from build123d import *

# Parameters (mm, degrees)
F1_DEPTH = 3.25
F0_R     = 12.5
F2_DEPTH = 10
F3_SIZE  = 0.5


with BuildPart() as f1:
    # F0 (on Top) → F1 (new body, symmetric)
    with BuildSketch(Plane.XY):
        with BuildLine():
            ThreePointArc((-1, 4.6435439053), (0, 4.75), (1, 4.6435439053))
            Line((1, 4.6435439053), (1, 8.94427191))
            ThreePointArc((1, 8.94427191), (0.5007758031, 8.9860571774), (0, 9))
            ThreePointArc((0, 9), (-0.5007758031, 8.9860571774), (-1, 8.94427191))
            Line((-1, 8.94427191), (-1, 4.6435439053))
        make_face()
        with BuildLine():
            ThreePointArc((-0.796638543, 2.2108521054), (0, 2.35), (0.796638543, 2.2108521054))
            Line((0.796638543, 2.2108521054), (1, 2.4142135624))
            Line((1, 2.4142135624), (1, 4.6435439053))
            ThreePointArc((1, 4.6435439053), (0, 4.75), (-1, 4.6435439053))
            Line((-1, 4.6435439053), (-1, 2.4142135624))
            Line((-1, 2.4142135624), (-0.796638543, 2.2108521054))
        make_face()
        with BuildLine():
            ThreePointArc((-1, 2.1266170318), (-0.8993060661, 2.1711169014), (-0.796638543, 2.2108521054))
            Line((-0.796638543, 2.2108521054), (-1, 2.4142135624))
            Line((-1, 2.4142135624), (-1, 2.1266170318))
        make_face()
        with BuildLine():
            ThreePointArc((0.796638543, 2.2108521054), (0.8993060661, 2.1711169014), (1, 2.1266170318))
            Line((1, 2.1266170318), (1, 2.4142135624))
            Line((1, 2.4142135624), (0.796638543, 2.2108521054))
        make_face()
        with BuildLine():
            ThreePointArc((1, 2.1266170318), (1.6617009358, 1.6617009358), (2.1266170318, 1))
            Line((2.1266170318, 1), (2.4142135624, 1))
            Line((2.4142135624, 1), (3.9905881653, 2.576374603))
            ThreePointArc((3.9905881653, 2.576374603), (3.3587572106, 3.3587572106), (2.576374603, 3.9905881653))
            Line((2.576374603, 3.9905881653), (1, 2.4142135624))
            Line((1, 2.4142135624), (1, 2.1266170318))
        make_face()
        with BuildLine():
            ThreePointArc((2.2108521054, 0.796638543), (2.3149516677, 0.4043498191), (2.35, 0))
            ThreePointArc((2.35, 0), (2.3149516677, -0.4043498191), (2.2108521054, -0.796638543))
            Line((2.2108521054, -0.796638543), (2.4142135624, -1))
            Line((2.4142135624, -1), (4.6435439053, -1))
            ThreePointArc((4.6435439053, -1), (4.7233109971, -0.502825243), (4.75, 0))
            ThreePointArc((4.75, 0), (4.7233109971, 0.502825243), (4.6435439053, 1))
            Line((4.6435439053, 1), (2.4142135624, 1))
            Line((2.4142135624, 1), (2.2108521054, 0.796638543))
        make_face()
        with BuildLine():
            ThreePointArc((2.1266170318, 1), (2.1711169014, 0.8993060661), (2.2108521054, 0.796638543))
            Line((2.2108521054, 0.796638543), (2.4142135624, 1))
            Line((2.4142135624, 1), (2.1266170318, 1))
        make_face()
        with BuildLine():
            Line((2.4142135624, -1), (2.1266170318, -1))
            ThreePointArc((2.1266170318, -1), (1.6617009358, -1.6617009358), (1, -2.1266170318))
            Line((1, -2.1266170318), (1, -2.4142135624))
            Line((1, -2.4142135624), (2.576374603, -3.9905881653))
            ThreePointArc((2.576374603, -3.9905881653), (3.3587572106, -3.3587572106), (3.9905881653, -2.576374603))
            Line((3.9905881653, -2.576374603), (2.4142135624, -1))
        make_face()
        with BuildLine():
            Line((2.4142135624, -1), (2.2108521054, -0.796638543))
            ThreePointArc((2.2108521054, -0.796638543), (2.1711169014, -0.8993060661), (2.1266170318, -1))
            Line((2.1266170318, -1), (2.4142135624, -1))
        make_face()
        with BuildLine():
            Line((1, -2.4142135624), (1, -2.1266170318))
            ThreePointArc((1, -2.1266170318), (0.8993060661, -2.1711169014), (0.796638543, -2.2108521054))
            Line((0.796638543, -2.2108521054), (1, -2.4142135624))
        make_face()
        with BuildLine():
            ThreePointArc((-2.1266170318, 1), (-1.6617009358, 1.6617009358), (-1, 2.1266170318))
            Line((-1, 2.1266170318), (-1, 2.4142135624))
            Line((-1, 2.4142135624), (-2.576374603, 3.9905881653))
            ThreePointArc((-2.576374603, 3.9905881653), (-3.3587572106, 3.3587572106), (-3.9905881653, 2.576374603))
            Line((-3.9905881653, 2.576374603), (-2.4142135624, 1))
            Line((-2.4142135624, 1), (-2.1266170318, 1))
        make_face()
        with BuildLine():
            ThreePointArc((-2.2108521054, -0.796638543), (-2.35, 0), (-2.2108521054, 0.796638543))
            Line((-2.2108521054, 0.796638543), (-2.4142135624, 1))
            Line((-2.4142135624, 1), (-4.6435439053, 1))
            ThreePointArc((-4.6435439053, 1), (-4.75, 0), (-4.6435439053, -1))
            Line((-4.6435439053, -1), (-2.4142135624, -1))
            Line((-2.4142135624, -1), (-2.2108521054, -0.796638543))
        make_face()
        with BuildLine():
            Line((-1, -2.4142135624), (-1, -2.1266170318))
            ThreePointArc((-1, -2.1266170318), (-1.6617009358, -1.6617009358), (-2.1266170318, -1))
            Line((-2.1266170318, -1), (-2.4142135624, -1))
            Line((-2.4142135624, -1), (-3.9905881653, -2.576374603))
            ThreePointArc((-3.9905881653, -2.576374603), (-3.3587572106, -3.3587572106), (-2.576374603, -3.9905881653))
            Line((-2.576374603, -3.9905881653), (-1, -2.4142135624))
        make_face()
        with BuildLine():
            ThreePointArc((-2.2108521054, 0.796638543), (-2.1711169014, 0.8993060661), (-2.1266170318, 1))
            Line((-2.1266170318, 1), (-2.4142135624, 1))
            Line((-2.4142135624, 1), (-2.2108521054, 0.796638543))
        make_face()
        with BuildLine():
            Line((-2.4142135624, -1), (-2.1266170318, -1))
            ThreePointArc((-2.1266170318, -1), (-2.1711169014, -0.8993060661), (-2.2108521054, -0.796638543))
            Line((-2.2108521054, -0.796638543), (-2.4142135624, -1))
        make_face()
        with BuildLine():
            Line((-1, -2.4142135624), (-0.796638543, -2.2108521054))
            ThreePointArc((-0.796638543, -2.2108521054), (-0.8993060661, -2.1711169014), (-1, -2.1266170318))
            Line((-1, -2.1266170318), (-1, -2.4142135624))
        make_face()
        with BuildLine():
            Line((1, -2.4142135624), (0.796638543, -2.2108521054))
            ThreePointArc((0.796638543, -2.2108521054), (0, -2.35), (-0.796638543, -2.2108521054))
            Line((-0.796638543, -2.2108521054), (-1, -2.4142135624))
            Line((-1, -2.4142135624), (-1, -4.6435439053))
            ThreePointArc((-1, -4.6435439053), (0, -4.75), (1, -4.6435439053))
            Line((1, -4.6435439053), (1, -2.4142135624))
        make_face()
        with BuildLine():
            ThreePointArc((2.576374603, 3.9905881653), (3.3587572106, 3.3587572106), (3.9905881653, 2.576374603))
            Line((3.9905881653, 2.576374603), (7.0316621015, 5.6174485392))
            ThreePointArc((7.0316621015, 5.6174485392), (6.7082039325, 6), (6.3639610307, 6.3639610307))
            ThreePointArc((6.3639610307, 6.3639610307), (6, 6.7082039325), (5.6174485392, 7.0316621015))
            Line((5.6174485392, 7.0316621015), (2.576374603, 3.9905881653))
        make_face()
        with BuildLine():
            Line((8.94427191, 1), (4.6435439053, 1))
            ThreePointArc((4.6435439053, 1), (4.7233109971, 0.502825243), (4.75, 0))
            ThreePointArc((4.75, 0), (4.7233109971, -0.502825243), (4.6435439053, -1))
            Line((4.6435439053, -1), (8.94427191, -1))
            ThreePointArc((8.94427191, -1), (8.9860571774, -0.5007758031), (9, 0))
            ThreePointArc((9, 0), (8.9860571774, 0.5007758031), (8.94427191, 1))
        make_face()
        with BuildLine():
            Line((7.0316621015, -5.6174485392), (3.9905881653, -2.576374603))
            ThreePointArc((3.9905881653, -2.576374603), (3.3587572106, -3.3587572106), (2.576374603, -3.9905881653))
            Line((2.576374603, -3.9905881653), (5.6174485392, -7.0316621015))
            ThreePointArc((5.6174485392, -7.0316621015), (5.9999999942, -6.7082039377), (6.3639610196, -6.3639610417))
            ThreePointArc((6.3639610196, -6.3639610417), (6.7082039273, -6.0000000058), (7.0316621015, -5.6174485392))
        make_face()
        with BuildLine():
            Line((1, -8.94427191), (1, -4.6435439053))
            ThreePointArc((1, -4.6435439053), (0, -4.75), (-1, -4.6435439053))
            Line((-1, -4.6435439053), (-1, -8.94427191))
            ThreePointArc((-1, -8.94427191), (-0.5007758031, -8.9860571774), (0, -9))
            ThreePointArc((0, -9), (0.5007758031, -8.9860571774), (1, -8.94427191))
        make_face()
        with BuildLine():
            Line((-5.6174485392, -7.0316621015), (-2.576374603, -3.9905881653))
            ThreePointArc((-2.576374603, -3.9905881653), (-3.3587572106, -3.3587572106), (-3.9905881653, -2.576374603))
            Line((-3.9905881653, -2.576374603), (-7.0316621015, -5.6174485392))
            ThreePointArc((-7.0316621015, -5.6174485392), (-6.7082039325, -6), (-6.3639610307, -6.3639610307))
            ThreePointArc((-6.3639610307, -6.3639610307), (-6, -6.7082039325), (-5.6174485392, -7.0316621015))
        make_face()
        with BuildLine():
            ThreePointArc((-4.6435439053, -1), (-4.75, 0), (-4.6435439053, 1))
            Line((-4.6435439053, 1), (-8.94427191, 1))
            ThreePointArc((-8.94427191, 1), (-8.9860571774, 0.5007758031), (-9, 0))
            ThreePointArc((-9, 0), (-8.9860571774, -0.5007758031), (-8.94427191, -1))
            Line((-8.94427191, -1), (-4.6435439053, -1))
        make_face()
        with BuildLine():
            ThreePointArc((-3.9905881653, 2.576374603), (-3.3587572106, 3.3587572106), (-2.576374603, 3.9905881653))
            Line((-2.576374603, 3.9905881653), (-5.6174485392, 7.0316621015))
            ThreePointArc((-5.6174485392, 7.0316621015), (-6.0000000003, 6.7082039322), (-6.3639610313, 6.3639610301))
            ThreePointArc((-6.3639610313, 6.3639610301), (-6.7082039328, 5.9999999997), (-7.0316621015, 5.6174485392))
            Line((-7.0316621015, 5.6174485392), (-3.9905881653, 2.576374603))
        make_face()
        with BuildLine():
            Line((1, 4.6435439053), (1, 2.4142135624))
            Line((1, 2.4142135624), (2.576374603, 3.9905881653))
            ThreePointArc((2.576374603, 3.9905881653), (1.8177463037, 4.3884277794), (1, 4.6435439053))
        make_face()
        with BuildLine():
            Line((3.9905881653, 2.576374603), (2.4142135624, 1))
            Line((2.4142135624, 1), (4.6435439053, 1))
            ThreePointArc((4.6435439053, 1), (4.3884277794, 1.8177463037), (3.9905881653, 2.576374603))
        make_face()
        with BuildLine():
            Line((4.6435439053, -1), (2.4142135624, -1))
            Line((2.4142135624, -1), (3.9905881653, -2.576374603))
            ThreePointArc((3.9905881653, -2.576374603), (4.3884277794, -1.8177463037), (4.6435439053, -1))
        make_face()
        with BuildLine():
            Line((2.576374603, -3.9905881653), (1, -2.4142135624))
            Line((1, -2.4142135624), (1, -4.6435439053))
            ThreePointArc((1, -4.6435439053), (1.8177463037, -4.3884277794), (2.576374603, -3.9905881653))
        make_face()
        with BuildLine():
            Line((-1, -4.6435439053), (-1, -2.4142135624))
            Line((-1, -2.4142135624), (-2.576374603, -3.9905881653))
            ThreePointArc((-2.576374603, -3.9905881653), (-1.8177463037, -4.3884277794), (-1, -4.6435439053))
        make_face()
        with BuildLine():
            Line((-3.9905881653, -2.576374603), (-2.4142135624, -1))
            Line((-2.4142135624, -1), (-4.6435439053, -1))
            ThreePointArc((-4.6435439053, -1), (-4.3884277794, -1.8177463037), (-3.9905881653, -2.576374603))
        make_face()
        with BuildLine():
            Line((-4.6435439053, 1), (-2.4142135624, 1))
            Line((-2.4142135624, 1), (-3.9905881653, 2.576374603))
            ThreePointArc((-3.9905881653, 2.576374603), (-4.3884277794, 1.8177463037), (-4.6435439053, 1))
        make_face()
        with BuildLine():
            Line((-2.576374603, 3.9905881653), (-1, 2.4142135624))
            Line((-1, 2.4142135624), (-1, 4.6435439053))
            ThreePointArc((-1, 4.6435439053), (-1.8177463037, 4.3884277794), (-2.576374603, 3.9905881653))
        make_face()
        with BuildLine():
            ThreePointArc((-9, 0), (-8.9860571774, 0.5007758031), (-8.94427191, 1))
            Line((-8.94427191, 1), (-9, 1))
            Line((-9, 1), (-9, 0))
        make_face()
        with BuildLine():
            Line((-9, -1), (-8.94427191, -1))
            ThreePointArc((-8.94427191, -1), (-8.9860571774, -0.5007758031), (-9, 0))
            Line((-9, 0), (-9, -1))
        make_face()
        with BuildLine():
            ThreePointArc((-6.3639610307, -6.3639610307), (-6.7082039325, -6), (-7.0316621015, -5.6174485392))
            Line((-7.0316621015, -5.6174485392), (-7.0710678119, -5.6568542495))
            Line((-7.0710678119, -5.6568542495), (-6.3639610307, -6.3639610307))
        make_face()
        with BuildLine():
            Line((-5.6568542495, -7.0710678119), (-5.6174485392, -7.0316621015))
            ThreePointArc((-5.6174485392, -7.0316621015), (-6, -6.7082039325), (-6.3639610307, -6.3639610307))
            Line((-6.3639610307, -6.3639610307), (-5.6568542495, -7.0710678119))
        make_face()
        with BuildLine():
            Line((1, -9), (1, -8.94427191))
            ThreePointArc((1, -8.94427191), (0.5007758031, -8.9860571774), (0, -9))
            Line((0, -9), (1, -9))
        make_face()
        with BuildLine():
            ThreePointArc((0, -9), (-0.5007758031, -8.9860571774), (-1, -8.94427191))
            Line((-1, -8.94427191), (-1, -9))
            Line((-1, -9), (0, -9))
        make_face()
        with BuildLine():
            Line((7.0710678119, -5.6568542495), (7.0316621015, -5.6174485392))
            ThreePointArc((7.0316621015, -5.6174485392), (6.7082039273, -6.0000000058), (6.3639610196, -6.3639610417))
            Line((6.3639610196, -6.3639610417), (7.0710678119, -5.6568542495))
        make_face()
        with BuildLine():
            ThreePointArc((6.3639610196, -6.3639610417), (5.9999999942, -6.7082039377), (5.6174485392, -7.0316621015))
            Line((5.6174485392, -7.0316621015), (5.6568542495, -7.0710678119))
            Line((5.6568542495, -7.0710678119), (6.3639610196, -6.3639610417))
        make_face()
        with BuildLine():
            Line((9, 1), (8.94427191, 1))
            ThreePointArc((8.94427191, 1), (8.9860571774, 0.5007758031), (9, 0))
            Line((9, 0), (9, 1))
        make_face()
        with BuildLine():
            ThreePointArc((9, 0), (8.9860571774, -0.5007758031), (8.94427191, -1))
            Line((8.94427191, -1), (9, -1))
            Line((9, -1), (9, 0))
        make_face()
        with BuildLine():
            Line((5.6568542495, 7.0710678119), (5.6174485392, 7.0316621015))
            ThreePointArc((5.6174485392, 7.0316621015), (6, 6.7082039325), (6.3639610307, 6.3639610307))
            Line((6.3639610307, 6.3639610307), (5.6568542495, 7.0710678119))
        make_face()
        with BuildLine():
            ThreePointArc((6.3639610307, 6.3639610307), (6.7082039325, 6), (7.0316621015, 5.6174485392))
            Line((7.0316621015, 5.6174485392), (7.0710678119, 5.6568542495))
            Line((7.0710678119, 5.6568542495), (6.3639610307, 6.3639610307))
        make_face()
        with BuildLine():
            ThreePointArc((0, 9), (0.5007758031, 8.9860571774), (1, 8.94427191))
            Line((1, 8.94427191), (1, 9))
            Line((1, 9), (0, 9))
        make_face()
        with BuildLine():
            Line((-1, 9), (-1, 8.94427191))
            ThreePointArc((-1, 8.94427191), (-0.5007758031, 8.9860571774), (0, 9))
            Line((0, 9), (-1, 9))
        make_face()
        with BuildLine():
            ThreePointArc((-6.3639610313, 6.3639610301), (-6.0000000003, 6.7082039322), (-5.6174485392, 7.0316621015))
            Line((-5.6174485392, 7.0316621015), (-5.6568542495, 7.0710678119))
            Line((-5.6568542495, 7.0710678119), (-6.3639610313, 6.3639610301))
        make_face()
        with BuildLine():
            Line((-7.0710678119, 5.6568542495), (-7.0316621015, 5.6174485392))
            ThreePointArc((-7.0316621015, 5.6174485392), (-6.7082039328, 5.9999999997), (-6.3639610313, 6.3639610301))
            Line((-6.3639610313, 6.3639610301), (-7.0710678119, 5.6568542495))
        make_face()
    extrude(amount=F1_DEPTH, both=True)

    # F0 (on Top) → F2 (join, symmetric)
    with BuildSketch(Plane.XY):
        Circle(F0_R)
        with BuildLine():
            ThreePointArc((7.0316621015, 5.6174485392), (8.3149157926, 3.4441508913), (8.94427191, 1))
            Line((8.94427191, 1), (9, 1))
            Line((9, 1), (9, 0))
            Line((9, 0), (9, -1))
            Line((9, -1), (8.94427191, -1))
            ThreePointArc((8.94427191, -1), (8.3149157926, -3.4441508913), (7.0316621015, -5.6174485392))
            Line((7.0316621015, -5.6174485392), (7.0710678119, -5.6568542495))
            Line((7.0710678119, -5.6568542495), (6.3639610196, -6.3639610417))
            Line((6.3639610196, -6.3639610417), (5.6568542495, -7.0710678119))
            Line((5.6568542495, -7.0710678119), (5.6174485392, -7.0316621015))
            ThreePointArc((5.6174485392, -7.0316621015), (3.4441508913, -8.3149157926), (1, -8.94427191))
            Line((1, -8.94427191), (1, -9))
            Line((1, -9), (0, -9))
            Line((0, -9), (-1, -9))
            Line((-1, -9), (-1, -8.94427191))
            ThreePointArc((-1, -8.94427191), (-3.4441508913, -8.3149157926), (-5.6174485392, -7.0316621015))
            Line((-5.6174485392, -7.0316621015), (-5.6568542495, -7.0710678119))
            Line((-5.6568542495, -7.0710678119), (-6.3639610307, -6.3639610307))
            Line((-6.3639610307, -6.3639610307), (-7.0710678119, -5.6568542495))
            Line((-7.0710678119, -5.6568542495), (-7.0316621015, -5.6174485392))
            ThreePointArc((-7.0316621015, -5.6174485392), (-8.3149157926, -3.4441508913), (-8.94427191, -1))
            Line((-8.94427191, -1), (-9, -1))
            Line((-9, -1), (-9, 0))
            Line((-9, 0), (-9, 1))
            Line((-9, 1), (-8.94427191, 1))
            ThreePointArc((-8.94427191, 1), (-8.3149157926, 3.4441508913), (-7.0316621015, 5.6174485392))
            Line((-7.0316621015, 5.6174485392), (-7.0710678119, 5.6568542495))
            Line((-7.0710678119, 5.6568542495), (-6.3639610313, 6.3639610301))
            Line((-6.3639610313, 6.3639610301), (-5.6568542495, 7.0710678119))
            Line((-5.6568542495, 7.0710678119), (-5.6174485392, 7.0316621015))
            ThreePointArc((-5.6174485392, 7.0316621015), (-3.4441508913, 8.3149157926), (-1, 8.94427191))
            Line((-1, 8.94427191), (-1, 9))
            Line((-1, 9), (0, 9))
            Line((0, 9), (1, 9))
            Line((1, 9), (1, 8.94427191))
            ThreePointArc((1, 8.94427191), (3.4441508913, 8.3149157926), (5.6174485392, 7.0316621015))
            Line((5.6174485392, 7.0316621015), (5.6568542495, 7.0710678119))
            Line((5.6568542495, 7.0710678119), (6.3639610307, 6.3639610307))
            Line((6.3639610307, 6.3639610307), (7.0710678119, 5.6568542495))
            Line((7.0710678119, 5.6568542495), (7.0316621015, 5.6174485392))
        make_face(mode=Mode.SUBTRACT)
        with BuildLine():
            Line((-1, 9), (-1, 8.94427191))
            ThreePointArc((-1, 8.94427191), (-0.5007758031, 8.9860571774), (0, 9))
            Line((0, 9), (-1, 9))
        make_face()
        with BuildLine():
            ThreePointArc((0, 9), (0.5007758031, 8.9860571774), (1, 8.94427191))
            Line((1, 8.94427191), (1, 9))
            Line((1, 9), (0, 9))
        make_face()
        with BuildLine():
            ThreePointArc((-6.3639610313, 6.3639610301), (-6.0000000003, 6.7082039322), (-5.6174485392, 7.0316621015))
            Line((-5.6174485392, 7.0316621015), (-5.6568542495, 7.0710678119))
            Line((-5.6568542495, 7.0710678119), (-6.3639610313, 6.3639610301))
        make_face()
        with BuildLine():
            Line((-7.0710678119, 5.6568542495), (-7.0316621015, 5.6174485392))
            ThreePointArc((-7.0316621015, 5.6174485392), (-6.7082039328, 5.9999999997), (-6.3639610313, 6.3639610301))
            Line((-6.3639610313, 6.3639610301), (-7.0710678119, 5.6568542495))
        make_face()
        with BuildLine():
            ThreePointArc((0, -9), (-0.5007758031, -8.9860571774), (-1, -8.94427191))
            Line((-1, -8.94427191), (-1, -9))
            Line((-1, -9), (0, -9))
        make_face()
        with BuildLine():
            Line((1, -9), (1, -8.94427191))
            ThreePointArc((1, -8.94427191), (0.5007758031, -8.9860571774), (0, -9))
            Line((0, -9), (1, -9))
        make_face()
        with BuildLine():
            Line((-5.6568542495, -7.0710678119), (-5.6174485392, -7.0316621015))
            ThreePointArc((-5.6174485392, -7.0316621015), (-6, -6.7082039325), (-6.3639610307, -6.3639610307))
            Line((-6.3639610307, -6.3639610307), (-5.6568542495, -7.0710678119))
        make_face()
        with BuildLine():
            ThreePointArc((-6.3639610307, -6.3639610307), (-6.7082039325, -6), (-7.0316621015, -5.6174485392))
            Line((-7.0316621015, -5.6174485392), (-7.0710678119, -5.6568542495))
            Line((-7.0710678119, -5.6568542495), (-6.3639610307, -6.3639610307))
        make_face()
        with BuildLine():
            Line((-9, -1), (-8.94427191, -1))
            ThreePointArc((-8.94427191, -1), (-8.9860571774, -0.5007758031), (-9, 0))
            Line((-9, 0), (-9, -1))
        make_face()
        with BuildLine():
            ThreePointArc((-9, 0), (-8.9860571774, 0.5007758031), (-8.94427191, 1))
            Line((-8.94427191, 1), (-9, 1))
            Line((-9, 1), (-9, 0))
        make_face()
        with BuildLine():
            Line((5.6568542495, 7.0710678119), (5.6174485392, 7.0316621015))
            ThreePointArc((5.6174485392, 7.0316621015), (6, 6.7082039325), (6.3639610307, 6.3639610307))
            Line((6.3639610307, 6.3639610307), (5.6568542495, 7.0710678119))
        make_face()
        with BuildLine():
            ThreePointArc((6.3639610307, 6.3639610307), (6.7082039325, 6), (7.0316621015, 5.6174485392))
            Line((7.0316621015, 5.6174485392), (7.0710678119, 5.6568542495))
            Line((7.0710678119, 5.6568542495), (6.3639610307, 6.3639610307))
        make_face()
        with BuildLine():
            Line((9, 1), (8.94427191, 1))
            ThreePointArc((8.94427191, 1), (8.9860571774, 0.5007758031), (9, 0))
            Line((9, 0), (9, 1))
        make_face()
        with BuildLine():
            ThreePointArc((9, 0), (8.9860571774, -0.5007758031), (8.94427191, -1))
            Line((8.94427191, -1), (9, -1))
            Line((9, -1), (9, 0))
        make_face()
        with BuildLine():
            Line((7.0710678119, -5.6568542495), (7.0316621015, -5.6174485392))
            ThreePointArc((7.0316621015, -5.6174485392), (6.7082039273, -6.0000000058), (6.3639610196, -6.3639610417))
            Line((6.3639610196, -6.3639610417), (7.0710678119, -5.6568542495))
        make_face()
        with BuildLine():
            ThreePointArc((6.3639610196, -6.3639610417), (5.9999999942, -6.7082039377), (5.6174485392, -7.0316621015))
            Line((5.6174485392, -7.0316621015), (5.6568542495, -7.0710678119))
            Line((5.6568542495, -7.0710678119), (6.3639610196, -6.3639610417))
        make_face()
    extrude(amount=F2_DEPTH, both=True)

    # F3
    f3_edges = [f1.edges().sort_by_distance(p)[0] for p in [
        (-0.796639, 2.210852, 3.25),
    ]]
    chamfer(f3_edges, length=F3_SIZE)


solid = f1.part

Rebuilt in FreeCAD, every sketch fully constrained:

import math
import FreeCAD as App
import Part
import Sketcher
from FreeCAD import Vector
Q = App.Units.Quantity


def edges_at(feature, points):
    """Names of the edges that pass closest to the given points."""
    edges = feature.Shape.Edges
    near = lambda p: min(range(len(edges)), key=lambda i: edges[i].distToShape(Part.Vertex(*p))[0])
    return sorted({f"Edge{near(p) + 1}" for p in points})

doc = App.newDocument("Part")
body = doc.addObject("PartDesign::Body", "Body")

sketch1 = body.newObject("Sketcher::SketchObject", "Sketch")
sketch1.AttachmentSupport = (doc.getObject("XY_Plane"), [""])
sketch1.MapMode = "FlatFace"
sketch1.addGeometry(Part.ArcOfCircle(Part.Circle(Vector(0, 0, 0), Vector(0, 0, 1), 4.75), math.radians(102.153197), math.radians(122.846803)), False)
sketch1.addGeometry(Part.LineSegment(Vector(-2.576375, 3.990588, 0), Vector(-5.617449, 7.031662, 0)), False)
sketch1.addGeometry(Part.LineSegment(Vector(-5.617449, 7.031662, 0), Vector(-5.656854, 7.071068, 0)), False)
sketch1.addGeometry(Part.LineSegment(Vector(-5.656854, 7.071068, 0), Vector(-7.071068, 5.656854, 0)), False)
sketch1.addGeometry(Part.LineSegment(Vector(-7.071068, 5.656854, 0), Vector(-7.031662, 5.617449, 0)), False)
sketch1.addGeometry(Part.LineSegment(Vector(-7.031662, 5.617449, 0), Vector(-3.990588, 2.576375, 0)), False)
sketch1.addGeometry(Part.ArcOfCircle(Part.Circle(Vector(0, 0, 0), Vector(0, 0, 1), 4.75), math.radians(147.153197), math.radians(167.846803)), False)
sketch1.addGeometry(Part.LineSegment(Vector(-4.643544, 1, 0), Vector(-9, 1, 0)), False)
sketch1.addGeometry(Part.LineSegment(Vector(-9, 1, 0), Vector(-9, -1, 0)), False)
sketch1.addGeometry(Part.LineSegment(Vector(-9, -1, 0), Vector(-4.643544, -1, 0)), False)
sketch1.addGeometry(Part.ArcOfCircle(Part.Circle(Vector(0, 0, 0), Vector(0, 0, 1), 4.75), math.radians(-167.846803), math.radians(-147.153197)), False)
sketch1.addGeometry(Part.LineSegment(Vector(-3.990588, -2.576375, 0), Vector(-7.031662, -5.617449, 0)), False)
sketch1.addGeometry(Part.LineSegment(Vector(-7.031662, -5.617449, 0), Vector(-7.071068, -5.656854, 0)), False)
sketch1.addGeometry(Part.LineSegment(Vector(-7.071068, -5.656854, 0), Vector(-5.656854, -7.071068, 0)), False)
sketch1.addGeometry(Part.LineSegment(Vector(-5.656854, -7.071068, 0), Vector(-5.617449, -7.031662, 0)), False)
sketch1.addGeometry(Part.LineSegment(Vector(-5.617449, -7.031662, 0), Vector(-2.576375, -3.990588, 0)), False)
sketch1.addGeometry(Part.ArcOfCircle(Part.Circle(Vector(0, 0, 0), Vector(0, 0, 1), 4.75), math.radians(-122.846803), math.radians(-102.153197)), False)
sketch1.addGeometry(Part.LineSegment(Vector(-1, -4.643544, 0), Vector(-1, -9, 0)), False)
sketch1.addGeometry(Part.LineSegment(Vector(-1, -9, 0), Vector(1, -9, 0)), False)
sketch1.addGeometry(Part.LineSegment(Vector(1, -9, 0), Vector(1, -4.643544, 0)), False)
sketch1.addGeometry(Part.ArcOfCircle(Part.Circle(Vector(0, 0, 0), Vector(0, 0, 1), 4.75), math.radians(-77.846803), math.radians(-57.153197)), False)
sketch1.addGeometry(Part.LineSegment(Vector(2.576375, -3.990588, 0), Vector(5.617449, -7.031662, 0)), False)
sketch1.addGeometry(Part.LineSegment(Vector(5.617449, -7.031662, 0), Vector(5.656854, -7.071068, 0)), False)
sketch1.addGeometry(Part.LineSegment(Vector(5.656854, -7.071068, 0), Vector(6.363961, -6.363961, 0)), False)
sketch1.addGeometry(Part.LineSegment(Vector(6.363961, -6.363961, 0), Vector(7.071068, -5.656854, 0)), False)
sketch1.addGeometry(Part.LineSegment(Vector(7.071068, -5.656854, 0), Vector(7.031662, -5.617449, 0)), False)
sketch1.addGeometry(Part.LineSegment(Vector(7.031662, -5.617449, 0), Vector(3.990588, -2.576375, 0)), False)
sketch1.addGeometry(Part.ArcOfCircle(Part.Circle(Vector(0, 0, 0), Vector(0, 0, 1), 4.75), math.radians(-32.846803), math.radians(-12.153197)), False)
sketch1.addGeometry(Part.LineSegment(Vector(4.643544, -1, 0), Vector(9, -1, 0)), False)
sketch1.addGeometry(Part.LineSegment(Vector(9, -1, 0), Vector(9, 1, 0)), False)
sketch1.addGeometry(Part.LineSegment(Vector(9, 1, 0), Vector(4.643544, 1, 0)), False)
sketch1.addGeometry(Part.ArcOfCircle(Part.Circle(Vector(0, 0, 0), Vector(0, 0, 1), 4.75), math.radians(12.153197), math.radians(32.846803)), False)
sketch1.addGeometry(Part.LineSegment(Vector(3.990588, 2.576375, 0), Vector(7.031662, 5.617449, 0)), False)
sketch1.addGeometry(Part.LineSegment(Vector(7.031662, 5.617449, 0), Vector(7.071068, 5.656854, 0)), False)
sketch1.addGeometry(Part.LineSegment(Vector(7.071068, 5.656854, 0), Vector(5.656854, 7.071068, 0)), False)
sketch1.addGeometry(Part.LineSegment(Vector(5.656854, 7.071068, 0), Vector(5.617449, 7.031662, 0)), False)
sketch1.addGeometry(Part.LineSegment(Vector(5.617449, 7.031662, 0), Vector(2.576375, 3.990588, 0)), False)
sketch1.addGeometry(Part.ArcOfCircle(Part.Circle(Vector(0, 0, 0), Vector(0, 0, 1), 4.75), math.radians(57.153197), math.radians(77.846803)), False)
sketch1.addGeometry(Part.LineSegment(Vector(1, 4.643544, 0), Vector(1, 9, 0)), False)
sketch1.addGeometry(Part.LineSegment(Vector(1, 9, 0), Vector(-1, 9, 0)), False)
sketch1.addGeometry(Part.LineSegment(Vector(-1, 9, 0), Vector(-1, 4.643544, 0)), False)
sketch1.addGeometry(Part.ArcOfCircle(Part.Circle(Vector(0, 0, 0), Vector(0, 0, 1), 2.35), math.radians(-115.184337), math.radians(-109.815663)), False)
sketch1.addGeometry(Part.ArcOfCircle(Part.Circle(Vector(0, 0, 0), Vector(0, 0, 1), 2.35), math.radians(-154.815663), math.radians(-115.184337)), False)
sketch1.addGeometry(Part.ArcOfCircle(Part.Circle(Vector(0, 0, 0), Vector(0, 0, 1), 2.35), math.radians(-160.184337), math.radians(-154.815663)), False)
sketch1.addGeometry(Part.ArcOfCircle(Part.Circle(Vector(0, 0, 0), Vector(0, 0, 1), 2.35), math.radians(160.184337), math.radians(199.815663)), False)
sketch1.addGeometry(Part.ArcOfCircle(Part.Circle(Vector(0, 0, 0), Vector(0, 0, 1), 2.35), math.radians(154.815663), math.radians(160.184337)), False)
sketch1.addGeometry(Part.ArcOfCircle(Part.Circle(Vector(0, 0, 0), Vector(0, 0, 1), 2.35), math.radians(115.184337), math.radians(154.815663)), False)
sketch1.addGeometry(Part.ArcOfCircle(Part.Circle(Vector(0, 0, 0), Vector(0, 0, 1), 2.35), math.radians(109.815663), math.radians(115.184337)), False)
sketch1.addGeometry(Part.ArcOfCircle(Part.Circle(Vector(0, 0, 0), Vector(0, 0, 1), 2.35), math.radians(70.184337), math.radians(109.815663)), False)
sketch1.addGeometry(Part.ArcOfCircle(Part.Circle(Vector(0, 0, 0), Vector(0, 0, 1), 2.35), math.radians(64.815663), math.radians(70.184337)), False)
sketch1.addGeometry(Part.ArcOfCircle(Part.Circle(Vector(0, 0, 0), Vector(0, 0, 1), 2.35), math.radians(25.184337), math.radians(64.815663)), False)
sketch1.addGeometry(Part.ArcOfCircle(Part.Circle(Vector(0, 0, 0), Vector(0, 0, 1), 2.35), math.radians(19.815663), math.radians(25.184337)), False)
sketch1.addGeometry(Part.ArcOfCircle(Part.Circle(Vector(0, 0, 0), Vector(0, 0, 1), 2.35), math.radians(0), math.radians(19.815663)), False)
sketch1.addGeometry(Part.ArcOfCircle(Part.Circle(Vector(0, 0, 0), Vector(0, 0, 1), 2.35), math.radians(-19.815663), math.radians(0)), False)
sketch1.addGeometry(Part.ArcOfCircle(Part.Circle(Vector(0, 0, 0), Vector(0, 0, 1), 2.35), math.radians(-25.184337), math.radians(-19.815663)), False)
sketch1.addGeometry(Part.ArcOfCircle(Part.Circle(Vector(0, 0, 0), Vector(0, 0, 1), 2.35), math.radians(-64.815663), math.radians(-25.184337)), False)
sketch1.addGeometry(Part.ArcOfCircle(Part.Circle(Vector(0, 0, 0), Vector(0, 0, 1), 2.35), math.radians(-70.184337), math.radians(-64.815663)), False)
sketch1.addGeometry(Part.ArcOfCircle(Part.Circle(Vector(0, 0, 0), Vector(0, 0, 1), 2.35), math.radians(-109.815663), math.radians(-70.184337)), False)
sketch1.addConstraint(Sketcher.Constraint("Coincident", 0, 2, 1, 1))
sketch1.addConstraint(Sketcher.Constraint("Coincident", 1, 2, 2, 1))
sketch1.addConstraint(Sketcher.Constraint("Coincident", 2, 2, 3, 1))
sketch1.addConstraint(Sketcher.Constraint("Coincident", 3, 2, 4, 1))
sketch1.addConstraint(Sketcher.Constraint("Coincident", 4, 2, 5, 1))
sketch1.addConstraint(Sketcher.Constraint("Coincident", 5, 2, 6, 1))
sketch1.addConstraint(Sketcher.Constraint("Coincident", 6, 2, 7, 1))
sketch1.addConstraint(Sketcher.Constraint("Coincident", 7, 2, 8, 1))
sketch1.addConstraint(Sketcher.Constraint("Coincident", 8, 2, 9, 1))
sketch1.addConstraint(Sketcher.Constraint("Coincident", 9, 2, 10, 1))
sketch1.addConstraint(Sketcher.Constraint("Coincident", 10, 2, 11, 1))
sketch1.addConstraint(Sketcher.Constraint("Coincident", 11, 2, 12, 1))
sketch1.addConstraint(Sketcher.Constraint("Coincident", 12, 2, 13, 1))
sketch1.addConstraint(Sketcher.Constraint("Coincident", 13, 2, 14, 1))
sketch1.addConstraint(Sketcher.Constraint("Coincident", 14, 2, 15, 1))
sketch1.addConstraint(Sketcher.Constraint("Coincident", 15, 2, 16, 1))
sketch1.addConstraint(Sketcher.Constraint("Coincident", 16, 2, 17, 1))
sketch1.addConstraint(Sketcher.Constraint("Coincident", 17, 2, 18, 1))
sketch1.addConstraint(Sketcher.Constraint("Coincident", 18, 2, 19, 1))
sketch1.addConstraint(Sketcher.Constraint("Coincident", 19, 2, 20, 1))
sketch1.addConstraint(Sketcher.Constraint("Coincident", 20, 2, 21, 1))
sketch1.addConstraint(Sketcher.Constraint("Coincident", 21, 2, 22, 1))
sketch1.addConstraint(Sketcher.Constraint("Coincident", 22, 2, 23, 1))
sketch1.addConstraint(Sketcher.Constraint("Coincident", 23, 2, 24, 1))
sketch1.addConstraint(Sketcher.Constraint("Coincident", 24, 2, 25, 1))
sketch1.addConstraint(Sketcher.Constraint("Coincident", 25, 2, 26, 1))
sketch1.addConstraint(Sketcher.Constraint("Coincident", 26, 2, 27, 1))
sketch1.addConstraint(Sketcher.Constraint("Coincident", 27, 2, 28, 1))
sketch1.addConstraint(Sketcher.Constraint("Coincident", 28, 2, 29, 1))
sketch1.addConstraint(Sketcher.Constraint("Coincident", 29, 2, 30, 1))
sketch1.addConstraint(Sketcher.Constraint("Coincident", 30, 2, 31, 1))
sketch1.addConstraint(Sketcher.Constraint("Coincident", 31, 2, 32, 1))
sketch1.addConstraint(Sketcher.Constraint("Coincident", 32, 2, 33, 1))
sketch1.addConstraint(Sketcher.Constraint("Coincident", 33, 2, 34, 1))
sketch1.addConstraint(Sketcher.Constraint("Coincident", 34, 2, 35, 1))
sketch1.addConstraint(Sketcher.Constraint("Coincident", 35, 2, 36, 1))
sketch1.addConstraint(Sketcher.Constraint("Coincident", 36, 2, 37, 1))
sketch1.addConstraint(Sketcher.Constraint("Coincident", 37, 2, 38, 1))
sketch1.addConstraint(Sketcher.Constraint("Coincident", 38, 2, 39, 1))
sketch1.addConstraint(Sketcher.Constraint("Coincident", 39, 2, 40, 1))
sketch1.addConstraint(Sketcher.Constraint("Coincident", 40, 2, 0, 1))
sketch1.addConstraint(Sketcher.Constraint("Tangent", 41, 1, 42, 2))
sketch1.addConstraint(Sketcher.Constraint("Tangent", 42, 1, 43, 2))
sketch1.addConstraint(Sketcher.Constraint("Tangent", 43, 1, 44, 2))
sketch1.addConstraint(Sketcher.Constraint("Tangent", 44, 1, 45, 2))
sketch1.addConstraint(Sketcher.Constraint("Tangent", 45, 1, 46, 2))
sketch1.addConstraint(Sketcher.Constraint("Tangent", 46, 1, 47, 2))
sketch1.addConstraint(Sketcher.Constraint("Tangent", 47, 1, 48, 2))
sketch1.addConstraint(Sketcher.Constraint("Tangent", 48, 1, 49, 2))
sketch1.addConstraint(Sketcher.Constraint("Tangent", 49, 1, 50, 2))
sketch1.addConstraint(Sketcher.Constraint("Tangent", 50, 1, 51, 2))
sketch1.addConstraint(Sketcher.Constraint("Tangent", 51, 1, 52, 2))
sketch1.addConstraint(Sketcher.Constraint("Tangent", 52, 1, 53, 2))
sketch1.addConstraint(Sketcher.Constraint("Tangent", 53, 1, 54, 2))
sketch1.addConstraint(Sketcher.Constraint("Tangent", 54, 1, 55, 2))
sketch1.addConstraint(Sketcher.Constraint("Tangent", 55, 1, 56, 2))
sketch1.addConstraint(Sketcher.Constraint("Tangent", 56, 1, 57, 2))
sketch1.addConstraint(Sketcher.Constraint("Tangent", 57, 1, 41, 2))
sketch1.addConstraint(Sketcher.Constraint("Horizontal", 7))
sketch1.addConstraint(Sketcher.Constraint("Vertical", 8))
sketch1.addConstraint(Sketcher.Constraint("Horizontal", 9))
sketch1.addConstraint(Sketcher.Constraint("Vertical", 17))
sketch1.addConstraint(Sketcher.Constraint("Horizontal", 18))
sketch1.addConstraint(Sketcher.Constraint("Vertical", 19))
sketch1.addConstraint(Sketcher.Constraint("Horizontal", 28))
sketch1.addConstraint(Sketcher.Constraint("Vertical", 29))
sketch1.addConstraint(Sketcher.Constraint("Horizontal", 30))
sketch1.addConstraint(Sketcher.Constraint("Vertical", 38))
sketch1.addConstraint(Sketcher.Constraint("Horizontal", 39))
sketch1.addConstraint(Sketcher.Constraint("Vertical", 40))
sketch1.addConstraint(Sketcher.Constraint("Coincident", 0, 3, -1, 1))
sketch1.addConstraint(Sketcher.Constraint("Coincident", 6, 3, -1, 1))
sketch1.addConstraint(Sketcher.Constraint("Coincident", 10, 3, -1, 1))
sketch1.addConstraint(Sketcher.Constraint("Coincident", 16, 3, -1, 1))
sketch1.addConstraint(Sketcher.Constraint("Coincident", 20, 3, -1, 1))
sketch1.addConstraint(Sketcher.Constraint("Coincident", 27, 3, -1, 1))
sketch1.addConstraint(Sketcher.Constraint("Coincident", 31, 3, -1, 1))
sketch1.addConstraint(Sketcher.Constraint("Coincident", 37, 3, -1, 1))
sketch1.addConstraint(Sketcher.Constraint("Coincident", 41, 3, -1, 1))
sketch1.addConstraint(Sketcher.Constraint("Coincident", 43, 3, -1, 1))
sketch1.addConstraint(Sketcher.Constraint("Coincident", 45, 3, -1, 1))
sketch1.addConstraint(Sketcher.Constraint("Coincident", 47, 3, -1, 1))
sketch1.addConstraint(Sketcher.Constraint("Coincident", 49, 3, -1, 1))
sketch1.addConstraint(Sketcher.Constraint("Coincident", 51, 3, -1, 1))
sketch1.addConstraint(Sketcher.Constraint("Coincident", 53, 3, -1, 1))
sketch1.addConstraint(Sketcher.Constraint("Coincident", 55, 3, -1, 1))
sketch1.addConstraint(Sketcher.Constraint("Equal", 0, 6))
sketch1.addConstraint(Sketcher.Constraint("Equal", 6, 10))
sketch1.addConstraint(Sketcher.Constraint("Equal", 10, 16))
sketch1.addConstraint(Sketcher.Constraint("Equal", 16, 20))
sketch1.addConstraint(Sketcher.Constraint("Equal", 20, 27))
sketch1.addConstraint(Sketcher.Constraint("Equal", 27, 31))
sketch1.addConstraint(Sketcher.Constraint("Equal", 31, 37))
sketch1.addConstraint(Sketcher.Constraint("Symmetric", 1, 2, 21, 2, -1, 1))
sketch1.addConstraint(Sketcher.Constraint("Symmetric", 2, 2, 22, 2, -1, 1))
sketch1.addConstraint(Sketcher.Constraint("Symmetric", 3, 2, 24, 2, -1, 1))
sketch1.addConstraint(Sketcher.Constraint("Symmetric", 4, 2, 25, 2, -1, 1))
sketch1.addConstraint(Sketcher.Constraint("Symmetric", 7, 2, 28, 2, -1, 1))
sketch1.addConstraint(Sketcher.Constraint("Symmetric", 11, 2, 32, 2, -1, 1))
sketch1.addConstraint(Sketcher.Constraint("Symmetric", 12, 2, 33, 2, -1, 1))
sketch1.addConstraint(Sketcher.Constraint("Symmetric", 13, 2, 34, 2, -1, 1))
sketch1.addConstraint(Sketcher.Constraint("Symmetric", 14, 2, 35, 2, -1, 1))
sketch1.addConstraint(Sketcher.Constraint("Symmetric", 17, 2, 38, 2, -1, 1))
sketch1.addConstraint(Sketcher.Constraint("Symmetric", 14, 2, 21, 2, -2))
sketch1.addConstraint(Sketcher.Constraint("Symmetric", 13, 2, 22, 2, -2))
sketch1.addConstraint(Sketcher.Constraint("Symmetric", 12, 2, 24, 2, -2))
sketch1.addConstraint(Sketcher.Constraint("Symmetric", 11, 2, 25, 2, -2))
sketch1.addConstraint(Sketcher.Constraint("PointOnObject", 52, 1, -1))
sketch1.addConstraint(Sketcher.Constraint("Parallel", 1, 2))
sketch1.addConstraint(Sketcher.Constraint("Perpendicular", 2, 3))
sketch1.addConstraint(Sketcher.Constraint("Perpendicular", 3, 4))
sketch1.addConstraint(Sketcher.Constraint("Parallel", 4, 5))
sketch1.addConstraint(Sketcher.Constraint("Perpendicular", 5, 11))
sketch1.addConstraint(Sketcher.Constraint("Parallel", 11, 12))
sketch1.addConstraint(Sketcher.Constraint("Parallel", 14, 15))
sketch1.addConstraint(Sketcher.Constraint("Perpendicular", 15, 21))
sketch1.addConstraint(Sketcher.Constraint("Perpendicular", 22, 23))
sketch1.addConstraint(Sketcher.Constraint("Parallel", 25, 26))
sketch1.addConstraint(Sketcher.Constraint("Perpendicular", 26, 32))
sketch1.addConstraint(Sketcher.Constraint("Parallel", 35, 36))
sketch1.addConstraint(Sketcher.Constraint("Horizontal", 16, 2, 19, 2))
sketch1.addConstraint(Sketcher.Constraint("Horizontal", 9, 2, 27, 2))
sketch1.addConstraint(Sketcher.Constraint("Horizontal", 7, 2, 29, 2))
sketch1.addConstraint(Sketcher.Constraint("Horizontal", 37, 2, 40, 2))
sketch1.addConstraint(Sketcher.Constraint("Horizontal", 28, 2, 42, 1))
sketch1.addConstraint(Sketcher.Constraint("Horizontal", 30, 2, 45, 1))
sketch1.addConstraint(Sketcher.Constraint("Horizontal", 47, 1, 48, 1))
sketch1.addConstraint(Sketcher.Constraint("Horizontal", 46, 1, 49, 1))
sketch1.addConstraint(Sketcher.Constraint("Horizontal", 45, 1, 50, 1))
sketch1.addConstraint(Sketcher.Constraint("Horizontal", 44, 1, 51, 1))
sketch1.addConstraint(Sketcher.Constraint("Horizontal", 43, 1, 53, 1))
sketch1.addConstraint(Sketcher.Constraint("Horizontal", 42, 1, 54, 1))
sketch1.addConstraint(Sketcher.Constraint("Horizontal", 41, 1, 55, 1))
sketch1.addConstraint(Sketcher.Constraint("Horizontal", 56, 1, 57, 1))
sketch1.addConstraint(Sketcher.Constraint("Vertical", 40, 2, 41, 1))
sketch1.addConstraint(Sketcher.Constraint("Vertical", 43, 1, 44, 1))
sketch1.addConstraint(Sketcher.Constraint("Vertical", 41, 1, 46, 1))
sketch1.addConstraint(Sketcher.Constraint("Vertical", 48, 1, 56, 1))
sketch1.addConstraint(Sketcher.Constraint("Equal", 39, 8))
sketch1.addConstraint(Sketcher.Constraint("Equal", 30, 17))
sketch1.addConstraint(Sketcher.Constraint("Equal", 2, 4))
sketch1.addConstraint(Sketcher.Constraint("Equal", 1, 5))
sketch1.addConstraint(Sketcher.Constraint("Equal", 23, 24))
sketch1.addConstraint(Sketcher.Constraint("DistanceX", 18, 1, 18, 2, Q("2 mm")))
sketch1.addConstraint(Sketcher.Constraint("Radius", 0, Q("4.75 mm")))
sketch1.addConstraint(Sketcher.Constraint("Radius", 41, Q("2.35 mm")))
sketch1.addConstraint(Sketcher.Constraint("Distance", 3, Q("2 mm")))
sketch1.addConstraint(Sketcher.Constraint("DistanceX", 7, 2, -1, 1, Q("9 mm")))
sketch1.addConstraint(Sketcher.Constraint("Distance", 1, Q("4.300728 mm")))
sketch1.addConstraint(Sketcher.Constraint("Distance", 2, Q("0.055728 mm")))
sketch1.addConstraint(Sketcher.Constraint("DistanceY", 43, 1, -1, 1, Q("0.796639 mm")))
sketch1.addConstraint(Sketcher.Constraint("DistanceX", 47, 1, -1, 1, Q("0.796639 mm")))
pad1 = body.newObject("PartDesign::Pad", "Pad")
pad1.Profile = sketch1
pad1.Length = 6.5
pad1.Midplane = True

sketch2 = body.newObject("Sketcher::SketchObject", "Sketch001")
sketch2.AttachmentSupport = (doc.getObject("XY_Plane"), [""])
sketch2.MapMode = "FlatFace"
sketch2.addGeometry(Part.Circle(Vector(0, 0, 0), Vector(0, 0, 1), 12.5), False)
sketch2.addGeometry(Part.ArcOfCircle(Part.Circle(Vector(0, 0, 0), Vector(0, 0, 1), 9), math.radians(6.37937), math.radians(38.62063)), False)
sketch2.addGeometry(Part.ArcOfCircle(Part.Circle(Vector(0, 0, 0), Vector(0, 0, 1), 9), math.radians(0), math.radians(6.37937)), False)
sketch2.addGeometry(Part.ArcOfCircle(Part.Circle(Vector(0, 0, 0), Vector(0, 0, 1), 9), math.radians(-6.37937), math.radians(0)), False)
sketch2.addGeometry(Part.ArcOfCircle(Part.Circle(Vector(0, 0, 0), Vector(0, 0, 1), 9), math.radians(-38.62063), math.radians(-6.37937)), False)
sketch2.addGeometry(Part.ArcOfCircle(Part.Circle(Vector(0, 0, 0), Vector(0, 0, 1), 9), math.radians(-45), math.radians(-38.62063)), False)
sketch2.addGeometry(Part.ArcOfCircle(Part.Circle(Vector(0, 0, 0), Vector(0, 0, 1), 9), math.radians(-51.37937), math.radians(-45)), False)
sketch2.addGeometry(Part.ArcOfCircle(Part.Circle(Vector(0, 0, 0), Vector(0, 0, 1), 9), math.radians(-83.62063), math.radians(-51.37937)), False)
sketch2.addGeometry(Part.ArcOfCircle(Part.Circle(Vector(0, 0, 0), Vector(0, 0, 1), 9), math.radians(-90), math.radians(-83.62063)), False)
sketch2.addGeometry(Part.ArcOfCircle(Part.Circle(Vector(0, 0, 0), Vector(0, 0, 1), 9), math.radians(-96.37937), math.radians(-90)), False)
sketch2.addGeometry(Part.ArcOfCircle(Part.Circle(Vector(0, 0, 0), Vector(0, 0, 1), 9), math.radians(-128.62063), math.radians(-96.37937)), False)
sketch2.addGeometry(Part.ArcOfCircle(Part.Circle(Vector(0, 0, 0), Vector(0, 0, 1), 9), math.radians(-135), math.radians(-128.62063)), False)
sketch2.addGeometry(Part.ArcOfCircle(Part.Circle(Vector(0, 0, 0), Vector(0, 0, 1), 9), math.radians(-141.37937), math.radians(-135)), False)
sketch2.addGeometry(Part.ArcOfCircle(Part.Circle(Vector(0, 0, 0), Vector(0, 0, 1), 9), math.radians(-173.62063), math.radians(-141.37937)), False)
sketch2.addGeometry(Part.ArcOfCircle(Part.Circle(Vector(0, 0, 0), Vector(0, 0, 1), 9), math.radians(180), math.radians(186.37937)), False)
sketch2.addGeometry(Part.ArcOfCircle(Part.Circle(Vector(0, 0, 0), Vector(0, 0, 1), 9), math.radians(173.62063), math.radians(180)), False)
sketch2.addGeometry(Part.ArcOfCircle(Part.Circle(Vector(0, 0, 0), Vector(0, 0, 1), 9), math.radians(141.37937), math.radians(173.62063)), False)
sketch2.addGeometry(Part.ArcOfCircle(Part.Circle(Vector(0, 0, 0), Vector(0, 0, 1), 9), math.radians(135), math.radians(141.37937)), False)
sketch2.addGeometry(Part.ArcOfCircle(Part.Circle(Vector(0, 0, 0), Vector(0, 0, 1), 9), math.radians(128.62063), math.radians(135)), False)
sketch2.addGeometry(Part.ArcOfCircle(Part.Circle(Vector(0, 0, 0), Vector(0, 0, 1), 9), math.radians(96.37937), math.radians(128.62063)), False)
sketch2.addGeometry(Part.ArcOfCircle(Part.Circle(Vector(0, 0, 0), Vector(0, 0, 1), 9), math.radians(90), math.radians(96.37937)), False)
sketch2.addGeometry(Part.ArcOfCircle(Part.Circle(Vector(0, 0, 0), Vector(0, 0, 1), 9), math.radians(83.62063), math.radians(90)), False)
sketch2.addGeometry(Part.ArcOfCircle(Part.Circle(Vector(0, 0, 0), Vector(0, 0, 1), 9), math.radians(51.37937), math.radians(83.62063)), False)
sketch2.addGeometry(Part.ArcOfCircle(Part.Circle(Vector(0, 0, 0), Vector(0, 0, 1), 9), math.radians(45), math.radians(51.37937)), False)
sketch2.addGeometry(Part.ArcOfCircle(Part.Circle(Vector(0, 0, 0), Vector(0, 0, 1), 9), math.radians(38.62063), math.radians(45)), False)
sketch2.addConstraint(Sketcher.Constraint("Tangent", 1, 1, 2, 2))
sketch2.addConstraint(Sketcher.Constraint("Tangent", 2, 1, 3, 2))
sketch2.addConstraint(Sketcher.Constraint("Tangent", 3, 1, 4, 2))
sketch2.addConstraint(Sketcher.Constraint("Tangent", 4, 1, 5, 2))
sketch2.addConstraint(Sketcher.Constraint("Tangent", 5, 1, 6, 2))
sketch2.addConstraint(Sketcher.Constraint("Tangent", 6, 1, 7, 2))
sketch2.addConstraint(Sketcher.Constraint("Tangent", 7, 1, 8, 2))
sketch2.addConstraint(Sketcher.Constraint("Tangent", 8, 1, 9, 2))
sketch2.addConstraint(Sketcher.Constraint("Tangent", 9, 1, 10, 2))
sketch2.addConstraint(Sketcher.Constraint("Tangent", 10, 1, 11, 2))
sketch2.addConstraint(Sketcher.Constraint("Tangent", 11, 1, 12, 2))
sketch2.addConstraint(Sketcher.Constraint("Tangent", 12, 1, 13, 2))
sketch2.addConstraint(Sketcher.Constraint("Tangent", 13, 1, 14, 2))
sketch2.addConstraint(Sketcher.Constraint("Tangent", 14, 1, 15, 2))
sketch2.addConstraint(Sketcher.Constraint("Tangent", 15, 1, 16, 2))
sketch2.addConstraint(Sketcher.Constraint("Tangent", 16, 1, 17, 2))
sketch2.addConstraint(Sketcher.Constraint("Tangent", 17, 1, 18, 2))
sketch2.addConstraint(Sketcher.Constraint("Tangent", 18, 1, 19, 2))
sketch2.addConstraint(Sketcher.Constraint("Tangent", 19, 1, 20, 2))
sketch2.addConstraint(Sketcher.Constraint("Tangent", 20, 1, 21, 2))
sketch2.addConstraint(Sketcher.Constraint("Tangent", 21, 1, 22, 2))
sketch2.addConstraint(Sketcher.Constraint("Tangent", 22, 1, 23, 2))
sketch2.addConstraint(Sketcher.Constraint("Tangent", 23, 1, 24, 2))
sketch2.addConstraint(Sketcher.Constraint("Tangent", 24, 1, 1, 2))
sketch2.addConstraint(Sketcher.Constraint("Coincident", 0, 3, -1, 1))
sketch2.addConstraint(Sketcher.Constraint("Coincident", 1, 3, -1, 1))
sketch2.addConstraint(Sketcher.Constraint("Coincident", 3, 3, -1, 1))
sketch2.addConstraint(Sketcher.Constraint("Coincident", 5, 3, -1, 1))
sketch2.addConstraint(Sketcher.Constraint("Coincident", 7, 3, -1, 1))
sketch2.addConstraint(Sketcher.Constraint("Coincident", 9, 3, -1, 1))
sketch2.addConstraint(Sketcher.Constraint("Coincident", 11, 3, -1, 1))
sketch2.addConstraint(Sketcher.Constraint("Coincident", 13, 3, -1, 1))
sketch2.addConstraint(Sketcher.Constraint("Coincident", 15, 3, -1, 1))
sketch2.addConstraint(Sketcher.Constraint("Coincident", 17, 3, -1, 1))
sketch2.addConstraint(Sketcher.Constraint("Coincident", 19, 3, -1, 1))
sketch2.addConstraint(Sketcher.Constraint("Coincident", 21, 3, -1, 1))
sketch2.addConstraint(Sketcher.Constraint("Equal", 21, 22))
sketch2.addConstraint(Sketcher.Constraint("PointOnObject", 2, 1, -1))
sketch2.addConstraint(Sketcher.Constraint("PointOnObject", 8, 1, -2))
sketch2.addConstraint(Sketcher.Constraint("PointOnObject", 14, 1, -1))
sketch2.addConstraint(Sketcher.Constraint("PointOnObject", 20, 1, -2))
sketch2.addConstraint(Sketcher.Constraint("Horizontal", 7, 1, 9, 1))
sketch2.addConstraint(Sketcher.Constraint("Horizontal", 6, 1, 10, 1))
sketch2.addConstraint(Sketcher.Constraint("Horizontal", 5, 1, 11, 1))
sketch2.addConstraint(Sketcher.Constraint("Horizontal", 4, 1, 12, 1))
sketch2.addConstraint(Sketcher.Constraint("Horizontal", 3, 1, 13, 1))
sketch2.addConstraint(Sketcher.Constraint("Horizontal", 1, 1, 15, 1))
sketch2.addConstraint(Sketcher.Constraint("Horizontal", 19, 1, 21, 1))
sketch2.addConstraint(Sketcher.Constraint("Horizontal", 18, 1, 22, 1))
sketch2.addConstraint(Sketcher.Constraint("Horizontal", 17, 1, 23, 1))
sketch2.addConstraint(Sketcher.Constraint("Horizontal", 16, 1, 24, 1))
sketch2.addConstraint(Sketcher.Constraint("Vertical", 1, 1, 3, 1))
sketch2.addConstraint(Sketcher.Constraint("Vertical", 12, 1, 16, 1))
sketch2.addConstraint(Sketcher.Constraint("Vertical", 11, 1, 17, 1))
sketch2.addConstraint(Sketcher.Constraint("Vertical", 10, 1, 18, 1))
sketch2.addConstraint(Sketcher.Constraint("Vertical", 9, 1, 19, 1))
sketch2.addConstraint(Sketcher.Constraint("Diameter", 0, Q("25 mm")))
sketch2.addConstraint(Sketcher.Constraint("Radius", 1, Q("9 mm")))
sketch2.addConstraint(Sketcher.Constraint("DistanceY", -1, 1, 1, 1, Q("1 mm")))
sketch2.addConstraint(Sketcher.Constraint("DistanceX", -1, 1, 7, 1, Q("1 mm")))
sketch2.addConstraint(Sketcher.Constraint("DistanceX", 5, 1, 4, 1, Q("0.667701 mm")))
sketch2.addConstraint(Sketcher.Constraint("DistanceY", 6, 1, 5, 1, Q("0.667701 mm")))
sketch2.addConstraint(Sketcher.Constraint("DistanceY", 4, 1, -1, 1, Q("5.617449 mm")))
pad2 = body.newObject("PartDesign::Pad", "Pad001")
pad2.Profile = sketch2
pad2.Length = 20
pad2.Midplane = True
doc.recompute()

chamfer = body.newObject("PartDesign::Chamfer", "Chamfer")
chamfer.Base = (pad2, edges_at(pad2, [(-0.899, 2.171, 3.25)]))
chamfer.Size = 0.5

doc.recompute()
